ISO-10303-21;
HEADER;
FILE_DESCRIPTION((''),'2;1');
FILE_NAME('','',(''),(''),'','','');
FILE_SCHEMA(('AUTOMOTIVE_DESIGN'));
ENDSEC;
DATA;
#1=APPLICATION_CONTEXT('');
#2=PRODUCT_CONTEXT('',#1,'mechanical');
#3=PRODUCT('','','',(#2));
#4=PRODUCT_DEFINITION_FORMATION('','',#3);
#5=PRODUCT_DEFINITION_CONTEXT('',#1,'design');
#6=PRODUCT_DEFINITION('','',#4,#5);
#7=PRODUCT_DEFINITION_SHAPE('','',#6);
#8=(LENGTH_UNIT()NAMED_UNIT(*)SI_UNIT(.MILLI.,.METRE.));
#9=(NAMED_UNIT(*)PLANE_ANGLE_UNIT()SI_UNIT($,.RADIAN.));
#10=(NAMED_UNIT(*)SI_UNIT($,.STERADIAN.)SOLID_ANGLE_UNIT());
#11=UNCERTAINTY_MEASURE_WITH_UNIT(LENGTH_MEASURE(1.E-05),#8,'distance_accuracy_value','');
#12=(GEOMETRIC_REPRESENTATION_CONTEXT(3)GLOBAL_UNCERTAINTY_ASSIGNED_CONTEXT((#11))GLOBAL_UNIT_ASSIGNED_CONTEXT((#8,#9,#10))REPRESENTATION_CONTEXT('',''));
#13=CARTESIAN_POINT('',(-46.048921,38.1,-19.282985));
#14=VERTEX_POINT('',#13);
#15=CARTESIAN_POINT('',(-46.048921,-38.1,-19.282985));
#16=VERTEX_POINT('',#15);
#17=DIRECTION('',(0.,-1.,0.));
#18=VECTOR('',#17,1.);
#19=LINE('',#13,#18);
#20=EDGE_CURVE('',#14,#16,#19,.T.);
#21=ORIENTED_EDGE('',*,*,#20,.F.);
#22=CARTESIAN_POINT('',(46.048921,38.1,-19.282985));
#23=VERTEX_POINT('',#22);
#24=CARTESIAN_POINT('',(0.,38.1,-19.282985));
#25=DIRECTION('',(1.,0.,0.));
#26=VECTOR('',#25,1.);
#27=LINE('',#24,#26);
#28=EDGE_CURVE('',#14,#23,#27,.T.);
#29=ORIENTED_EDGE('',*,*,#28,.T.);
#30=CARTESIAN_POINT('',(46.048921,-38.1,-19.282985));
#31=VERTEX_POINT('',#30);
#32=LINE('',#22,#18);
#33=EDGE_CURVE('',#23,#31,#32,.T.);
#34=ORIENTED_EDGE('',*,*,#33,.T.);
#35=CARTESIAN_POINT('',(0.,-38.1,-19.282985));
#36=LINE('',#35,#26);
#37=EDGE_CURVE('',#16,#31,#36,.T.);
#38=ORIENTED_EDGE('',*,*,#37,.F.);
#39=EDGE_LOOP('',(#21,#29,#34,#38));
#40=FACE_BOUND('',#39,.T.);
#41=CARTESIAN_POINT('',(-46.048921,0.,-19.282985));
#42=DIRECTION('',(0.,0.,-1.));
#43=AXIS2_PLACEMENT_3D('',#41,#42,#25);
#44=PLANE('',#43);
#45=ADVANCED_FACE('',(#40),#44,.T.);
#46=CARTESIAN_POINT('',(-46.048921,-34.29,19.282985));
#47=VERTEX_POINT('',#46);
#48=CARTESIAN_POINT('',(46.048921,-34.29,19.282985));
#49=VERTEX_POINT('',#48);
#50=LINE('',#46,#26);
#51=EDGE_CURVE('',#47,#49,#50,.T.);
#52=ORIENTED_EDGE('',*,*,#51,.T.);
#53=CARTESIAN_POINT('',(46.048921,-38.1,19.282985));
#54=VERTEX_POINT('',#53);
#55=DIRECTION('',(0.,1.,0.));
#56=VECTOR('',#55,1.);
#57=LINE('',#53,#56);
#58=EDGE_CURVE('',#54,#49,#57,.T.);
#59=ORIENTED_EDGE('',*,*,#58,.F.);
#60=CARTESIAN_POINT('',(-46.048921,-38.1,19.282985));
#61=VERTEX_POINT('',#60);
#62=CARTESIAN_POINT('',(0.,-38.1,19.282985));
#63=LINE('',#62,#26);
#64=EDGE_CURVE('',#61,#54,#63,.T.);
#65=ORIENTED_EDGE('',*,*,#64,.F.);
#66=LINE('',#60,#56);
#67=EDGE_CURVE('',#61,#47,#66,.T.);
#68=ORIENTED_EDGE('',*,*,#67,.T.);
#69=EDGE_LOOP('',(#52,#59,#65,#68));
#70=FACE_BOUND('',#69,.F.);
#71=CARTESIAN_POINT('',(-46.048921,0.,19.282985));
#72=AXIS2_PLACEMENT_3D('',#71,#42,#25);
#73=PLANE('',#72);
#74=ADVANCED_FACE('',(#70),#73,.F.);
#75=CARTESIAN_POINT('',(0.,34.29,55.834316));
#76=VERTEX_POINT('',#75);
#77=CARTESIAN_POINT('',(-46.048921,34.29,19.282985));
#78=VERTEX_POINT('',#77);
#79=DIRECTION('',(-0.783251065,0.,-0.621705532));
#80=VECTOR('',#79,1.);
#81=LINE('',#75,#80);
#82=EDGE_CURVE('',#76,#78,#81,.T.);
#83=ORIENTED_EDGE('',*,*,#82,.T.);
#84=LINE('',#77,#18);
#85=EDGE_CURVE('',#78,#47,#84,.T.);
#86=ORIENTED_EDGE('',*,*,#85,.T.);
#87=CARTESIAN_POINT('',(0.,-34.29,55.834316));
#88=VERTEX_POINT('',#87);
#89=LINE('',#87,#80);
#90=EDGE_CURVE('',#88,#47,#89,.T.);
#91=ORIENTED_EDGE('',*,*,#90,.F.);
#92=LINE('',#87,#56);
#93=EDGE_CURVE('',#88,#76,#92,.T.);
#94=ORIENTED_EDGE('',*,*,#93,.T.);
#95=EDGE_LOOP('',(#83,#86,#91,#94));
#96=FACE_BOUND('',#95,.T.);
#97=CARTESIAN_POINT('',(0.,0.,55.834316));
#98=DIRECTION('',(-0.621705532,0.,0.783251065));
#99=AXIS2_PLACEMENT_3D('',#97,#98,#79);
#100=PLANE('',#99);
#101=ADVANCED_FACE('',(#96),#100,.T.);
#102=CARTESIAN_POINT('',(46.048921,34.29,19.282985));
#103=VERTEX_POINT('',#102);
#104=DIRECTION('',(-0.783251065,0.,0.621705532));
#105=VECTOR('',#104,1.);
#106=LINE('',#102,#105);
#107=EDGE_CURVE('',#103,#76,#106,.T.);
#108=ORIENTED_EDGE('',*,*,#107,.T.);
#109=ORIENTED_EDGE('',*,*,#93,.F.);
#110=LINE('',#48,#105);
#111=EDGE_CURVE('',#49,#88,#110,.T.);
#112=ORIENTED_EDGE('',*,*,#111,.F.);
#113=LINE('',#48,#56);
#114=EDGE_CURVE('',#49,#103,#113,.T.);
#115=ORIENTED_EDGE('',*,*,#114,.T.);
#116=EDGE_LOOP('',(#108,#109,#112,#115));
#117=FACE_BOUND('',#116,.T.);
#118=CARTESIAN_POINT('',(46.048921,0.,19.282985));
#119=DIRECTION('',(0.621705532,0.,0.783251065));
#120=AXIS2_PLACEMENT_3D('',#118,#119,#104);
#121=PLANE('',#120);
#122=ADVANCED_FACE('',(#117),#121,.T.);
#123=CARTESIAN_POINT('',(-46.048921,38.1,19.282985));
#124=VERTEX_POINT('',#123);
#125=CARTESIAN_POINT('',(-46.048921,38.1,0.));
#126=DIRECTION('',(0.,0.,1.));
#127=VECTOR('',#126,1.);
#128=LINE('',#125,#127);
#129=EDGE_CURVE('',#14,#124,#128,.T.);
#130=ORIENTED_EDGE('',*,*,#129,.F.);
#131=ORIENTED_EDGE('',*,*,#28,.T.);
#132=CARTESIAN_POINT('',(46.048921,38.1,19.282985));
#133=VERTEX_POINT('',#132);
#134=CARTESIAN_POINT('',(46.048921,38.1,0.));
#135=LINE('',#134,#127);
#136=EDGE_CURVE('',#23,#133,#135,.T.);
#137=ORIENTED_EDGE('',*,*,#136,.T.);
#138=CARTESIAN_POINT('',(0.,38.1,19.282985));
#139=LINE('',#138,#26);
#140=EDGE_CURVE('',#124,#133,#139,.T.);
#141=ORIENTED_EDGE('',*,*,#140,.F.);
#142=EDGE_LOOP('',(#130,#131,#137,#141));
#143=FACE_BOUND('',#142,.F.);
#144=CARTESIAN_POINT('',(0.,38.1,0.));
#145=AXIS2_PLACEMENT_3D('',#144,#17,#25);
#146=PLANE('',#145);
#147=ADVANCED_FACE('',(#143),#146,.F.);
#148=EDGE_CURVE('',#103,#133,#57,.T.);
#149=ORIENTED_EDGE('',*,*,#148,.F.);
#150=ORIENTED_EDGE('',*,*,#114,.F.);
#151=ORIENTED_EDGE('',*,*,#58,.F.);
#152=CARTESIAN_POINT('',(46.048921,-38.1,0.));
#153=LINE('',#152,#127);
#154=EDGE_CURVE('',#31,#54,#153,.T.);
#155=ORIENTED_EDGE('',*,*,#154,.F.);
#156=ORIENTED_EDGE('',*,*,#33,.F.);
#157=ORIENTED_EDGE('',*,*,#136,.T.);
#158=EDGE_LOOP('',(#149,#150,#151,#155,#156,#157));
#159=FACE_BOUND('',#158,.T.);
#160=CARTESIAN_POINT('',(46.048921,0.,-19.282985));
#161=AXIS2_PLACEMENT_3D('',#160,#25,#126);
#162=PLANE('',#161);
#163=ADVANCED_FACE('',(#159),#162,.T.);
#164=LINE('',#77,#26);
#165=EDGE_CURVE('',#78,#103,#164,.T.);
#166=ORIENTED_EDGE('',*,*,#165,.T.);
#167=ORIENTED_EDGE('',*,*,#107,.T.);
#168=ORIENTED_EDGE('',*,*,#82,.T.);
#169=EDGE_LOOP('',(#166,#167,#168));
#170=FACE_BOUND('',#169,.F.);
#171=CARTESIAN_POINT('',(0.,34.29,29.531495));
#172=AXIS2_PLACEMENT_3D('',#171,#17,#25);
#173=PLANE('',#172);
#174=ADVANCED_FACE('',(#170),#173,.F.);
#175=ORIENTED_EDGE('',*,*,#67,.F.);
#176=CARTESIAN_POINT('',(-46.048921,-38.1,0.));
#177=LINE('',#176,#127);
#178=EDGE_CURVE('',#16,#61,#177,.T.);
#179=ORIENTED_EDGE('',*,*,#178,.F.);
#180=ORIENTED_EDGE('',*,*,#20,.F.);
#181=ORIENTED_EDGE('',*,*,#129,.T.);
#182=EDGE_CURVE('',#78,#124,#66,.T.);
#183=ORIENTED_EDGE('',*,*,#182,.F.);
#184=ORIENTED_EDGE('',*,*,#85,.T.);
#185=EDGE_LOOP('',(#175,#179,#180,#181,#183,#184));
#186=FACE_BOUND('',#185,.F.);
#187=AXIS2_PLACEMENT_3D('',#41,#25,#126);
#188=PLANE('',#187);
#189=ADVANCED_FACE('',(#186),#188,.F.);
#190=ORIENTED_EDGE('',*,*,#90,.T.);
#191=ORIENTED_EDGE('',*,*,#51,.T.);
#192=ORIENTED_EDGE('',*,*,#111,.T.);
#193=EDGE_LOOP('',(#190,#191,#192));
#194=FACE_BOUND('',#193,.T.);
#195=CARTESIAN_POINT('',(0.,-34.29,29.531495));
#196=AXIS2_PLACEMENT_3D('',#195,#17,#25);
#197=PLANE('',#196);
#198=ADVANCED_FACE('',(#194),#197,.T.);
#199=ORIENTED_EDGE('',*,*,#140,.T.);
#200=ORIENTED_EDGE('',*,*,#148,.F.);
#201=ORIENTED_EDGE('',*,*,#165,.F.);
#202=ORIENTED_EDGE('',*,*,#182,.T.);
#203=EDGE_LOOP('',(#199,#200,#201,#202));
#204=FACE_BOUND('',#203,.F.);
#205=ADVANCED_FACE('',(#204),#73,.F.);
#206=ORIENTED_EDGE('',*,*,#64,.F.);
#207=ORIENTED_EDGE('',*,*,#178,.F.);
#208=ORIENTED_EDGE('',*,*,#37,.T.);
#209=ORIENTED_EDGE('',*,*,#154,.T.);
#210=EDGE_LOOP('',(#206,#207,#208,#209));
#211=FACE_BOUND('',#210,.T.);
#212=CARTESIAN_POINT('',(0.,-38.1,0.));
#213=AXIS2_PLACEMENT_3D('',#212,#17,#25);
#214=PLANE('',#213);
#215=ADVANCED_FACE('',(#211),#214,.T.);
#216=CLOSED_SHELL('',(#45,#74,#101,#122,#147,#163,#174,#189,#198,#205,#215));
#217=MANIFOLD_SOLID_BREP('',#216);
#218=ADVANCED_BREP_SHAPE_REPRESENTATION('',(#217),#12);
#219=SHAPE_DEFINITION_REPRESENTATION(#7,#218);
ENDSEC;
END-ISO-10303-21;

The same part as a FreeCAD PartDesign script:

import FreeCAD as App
import Part
import Sketcher
Q = App.Units.Quantity

doc = App.newDocument("Part")
body = doc.addObject("PartDesign::Body", "Body")

# Sketch on XZ plane
sketch1 = doc.addObject("Sketcher::SketchObject", "Sketch")
body.addObject(sketch1)
sketch1.AttachmentSupport = (doc.XZ_Plane, [""])
sketch1.MapMode = "FlatFace"
sketch1.addGeometry([
    Part.LineSegment(App.Vector(0, 56, 0), App.Vector(-46, 19, 0)),
    Part.LineSegment(App.Vector(-46, 19, 0), App.Vector(46, 19, 0)),
    Part.LineSegment(App.Vector(46, 19, 0), App.Vector(0, 56, 0)),
], False)
sketch1.addConstraint([
    Sketcher.Constraint("Coincident", 0, 2, 1, 1),
    Sketcher.Constraint("Coincident", 1, 2, 2, 1),
    Sketcher.Constraint("Coincident", 2, 2, 0, 1),
    Sketcher.Constraint("Horizontal", 1),
    Sketcher.Constraint("PointOnObject", 2, 2, -2),
    Sketcher.Constraint("Equal", 0, 2),
    Sketcher.Constraint("DistanceX", 1, 1, 1, 2, Q("92.097842 mm")),
    Sketcher.Constraint("Distance", 0, Q("58.792031 mm")),
    Sketcher.Constraint("DistanceY", -1, 1, 0, 2, Q("19.282985 mm")),
])
pad1 = doc.addObject("PartDesign::Pad", "Pad")
body.addObject(pad1)
pad1.Profile = sketch1
pad1.Length = Q("2.7 in")
pad1.Midplane = True

# Sketch on XZ plane
sketch2 = doc.addObject("Sketcher::SketchObject", "Sketch001")
body.addObject(sketch2)
sketch2.AttachmentSupport = (doc.XZ_Plane, [""])
sketch2.MapMode = "FlatFace"
sketch2.addGeometry([
    Part.LineSegment(App.Vector(-46, 19, 0), App.Vector(-46, -19, 0)),
    Part.LineSegment(App.Vector(-46, -19, 0), App.Vector(46, -19, 0)),
    Part.LineSegment(App.Vector(46, -19, 0), App.Vector(46, 19, 0)),
    Part.LineSegment(App.Vector(46, 19, 0), App.Vector(-46, 19, 0)),
], False)
sketch2.addConstraint([
    Sketcher.Constraint("Coincident", 0, 2, 1, 1),
    Sketcher.Constraint("Coincident", 1, 2, 2, 1),
    Sketcher.Constraint("Coincident", 2, 2, 3, 1),
    Sketcher.Constraint("Coincident", 3, 2, 0, 1),
    Sketcher.Constraint("Vertical", 0),
    Sketcher.Constraint("Horizontal", 1),
    Sketcher.Constraint("Vertical", 2),
    Sketcher.Constraint("Horizontal", 3),
    Sketcher.Constraint("Symmetric", 0, 2, 2, 2, -1, 1),
    Sketcher.Constraint("DistanceX", 1, 1, 1, 2, Q("92.097842 mm")),
    Sketcher.Constraint("DistanceY", 0, 2, 0, 1, Q("38.56597 mm")),
])
pad2 = doc.addObject("PartDesign::Pad", "Pad001")
body.addObject(pad2)
pad2.Profile = sketch2
pad2.Length = Q("3 in")
pad2.Midplane = True

doc.recompute()
